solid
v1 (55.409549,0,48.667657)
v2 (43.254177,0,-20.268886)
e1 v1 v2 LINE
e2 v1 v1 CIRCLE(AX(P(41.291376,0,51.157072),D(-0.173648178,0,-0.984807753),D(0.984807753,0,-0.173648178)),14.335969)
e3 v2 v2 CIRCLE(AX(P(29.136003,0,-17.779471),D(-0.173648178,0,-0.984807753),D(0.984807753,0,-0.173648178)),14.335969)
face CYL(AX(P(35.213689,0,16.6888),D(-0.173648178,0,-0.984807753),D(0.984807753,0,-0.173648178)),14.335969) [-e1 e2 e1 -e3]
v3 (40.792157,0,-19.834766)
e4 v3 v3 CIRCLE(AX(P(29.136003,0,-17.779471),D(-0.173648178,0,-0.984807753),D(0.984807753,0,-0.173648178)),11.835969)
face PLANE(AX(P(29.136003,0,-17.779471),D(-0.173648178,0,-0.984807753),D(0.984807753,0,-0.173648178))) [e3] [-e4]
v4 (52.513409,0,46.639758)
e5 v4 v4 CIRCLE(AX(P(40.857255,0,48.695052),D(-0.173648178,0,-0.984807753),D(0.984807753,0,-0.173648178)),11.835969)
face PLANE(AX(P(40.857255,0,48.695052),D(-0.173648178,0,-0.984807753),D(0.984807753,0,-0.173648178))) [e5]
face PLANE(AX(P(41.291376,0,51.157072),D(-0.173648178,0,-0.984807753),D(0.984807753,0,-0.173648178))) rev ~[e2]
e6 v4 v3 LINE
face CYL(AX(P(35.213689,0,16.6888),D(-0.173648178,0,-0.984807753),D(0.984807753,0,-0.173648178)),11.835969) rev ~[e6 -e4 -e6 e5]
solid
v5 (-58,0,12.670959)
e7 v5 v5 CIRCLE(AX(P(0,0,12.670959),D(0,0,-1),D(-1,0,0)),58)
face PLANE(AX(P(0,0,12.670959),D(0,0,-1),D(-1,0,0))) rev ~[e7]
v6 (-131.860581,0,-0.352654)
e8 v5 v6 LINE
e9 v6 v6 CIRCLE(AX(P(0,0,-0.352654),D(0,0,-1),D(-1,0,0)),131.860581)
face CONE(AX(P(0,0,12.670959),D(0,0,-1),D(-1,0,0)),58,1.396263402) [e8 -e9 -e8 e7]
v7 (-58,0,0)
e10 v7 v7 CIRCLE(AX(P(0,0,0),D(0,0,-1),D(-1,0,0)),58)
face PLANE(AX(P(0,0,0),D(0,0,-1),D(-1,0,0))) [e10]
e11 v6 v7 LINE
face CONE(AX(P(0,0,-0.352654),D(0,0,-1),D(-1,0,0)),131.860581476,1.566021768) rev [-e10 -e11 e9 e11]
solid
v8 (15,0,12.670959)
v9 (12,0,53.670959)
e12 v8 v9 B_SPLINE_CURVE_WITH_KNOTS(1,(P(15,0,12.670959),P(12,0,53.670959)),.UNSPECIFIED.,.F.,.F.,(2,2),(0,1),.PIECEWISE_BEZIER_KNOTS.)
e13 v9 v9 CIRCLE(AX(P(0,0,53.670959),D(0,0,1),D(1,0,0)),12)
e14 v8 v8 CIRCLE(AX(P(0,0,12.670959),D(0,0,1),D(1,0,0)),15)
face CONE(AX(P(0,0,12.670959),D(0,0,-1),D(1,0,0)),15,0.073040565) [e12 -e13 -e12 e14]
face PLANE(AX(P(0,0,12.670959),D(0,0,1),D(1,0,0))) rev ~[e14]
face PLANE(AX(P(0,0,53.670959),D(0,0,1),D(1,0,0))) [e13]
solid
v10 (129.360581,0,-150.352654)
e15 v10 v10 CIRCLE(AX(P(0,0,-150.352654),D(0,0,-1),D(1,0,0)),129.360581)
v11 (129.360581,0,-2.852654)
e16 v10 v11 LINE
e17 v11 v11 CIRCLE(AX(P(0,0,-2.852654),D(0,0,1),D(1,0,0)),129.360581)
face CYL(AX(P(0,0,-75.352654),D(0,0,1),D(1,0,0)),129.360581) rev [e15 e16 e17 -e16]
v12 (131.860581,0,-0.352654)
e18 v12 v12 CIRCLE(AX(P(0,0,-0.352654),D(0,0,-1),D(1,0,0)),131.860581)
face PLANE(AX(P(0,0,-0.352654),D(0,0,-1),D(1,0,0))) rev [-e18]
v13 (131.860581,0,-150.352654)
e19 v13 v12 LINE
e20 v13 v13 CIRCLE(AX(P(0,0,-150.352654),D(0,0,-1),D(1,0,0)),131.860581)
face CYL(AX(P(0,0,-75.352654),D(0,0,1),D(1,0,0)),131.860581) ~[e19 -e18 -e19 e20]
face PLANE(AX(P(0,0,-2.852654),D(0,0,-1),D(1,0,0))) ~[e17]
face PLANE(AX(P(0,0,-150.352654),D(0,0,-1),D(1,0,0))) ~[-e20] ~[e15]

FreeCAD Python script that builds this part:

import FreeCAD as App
import Part
import Sketcher
from FreeCAD import Vector
Q = App.Units.Quantity


def faces_at(feature, points):
    """Names of the faces that lie closest to the given points."""
    faces = feature.Shape.Faces
    near = lambda p: min(range(len(faces)), key=lambda i: faces[i].distToShape(Part.Vertex(*p))[0])
    return sorted({f"Face{near(p) + 1}" for p in points})


def add_polygon(sketch, points):
    """Adds a closed chain of lines whose ends are joined by coincident constraints."""
    first, n = sketch.GeometryCount, len(points)
    for a, b in zip(points, points[1:] + points[:1]):
        sketch.addGeometry(Part.LineSegment(App.Vector(*a, 0), App.Vector(*b, 0)), False)
    for i in range(n):
        sketch.addConstraint(Sketcher.Constraint("Coincident", first + i, 2, first + (i + 1) % n, 1))

doc = App.newDocument("Part")
params = doc.addObject("Spreadsheet::Sheet", "Params")
for row, (alias, value) in enumerate([
    ("sketch1_height", "150 mm"),
    ("revolution_angle", "360 deg"),
    ("thickness_wall", "2.5 mm"),
    ("sketch2_width", "58 mm"),
    ("sketch2_length", "75 mm"),
    ("revolution2_angle", "360 deg"),
    ("sketch3_diameter", "30 mm"),
    ("sketch4_diameter", "24 mm"),
    ("pad1_length", "70 mm"),
    ("thickness2_wall", "2.5 mm"),
], start=1):
    params.set(f"A{row}", alias)
    params.set(f"B{row}", "=" + value)
    params.setAlias(f"B{row}", alias)

body = doc.addObject("PartDesign::Body", "Body")

# Sketch on XZ plane
sketch1 = body.newObject("Sketcher::SketchObject", "Sketch")
sketch1.AttachmentSupport = (doc.getObject("XZ_Plane"), [""])
sketch1.MapMode = "FlatFace"
add_polygon(sketch1, [(0, 0), (0, -150), (132, -150), (132, 0)])  # lines 0-3
sketch1.addConstraint([
    Sketcher.Constraint("Vertical", 0),
    Sketcher.Constraint("Horizontal", 1),
    Sketcher.Constraint("Vertical", 2),
    Sketcher.Constraint("Horizontal", 3),
    Sketcher.Constraint("PointOnObject", 0, 2, -2),
    Sketcher.Constraint("DistanceY", 0, 2, 0, 1, 150.0),
    Sketcher.Constraint("DistanceX", 1, 1, 1, 2, 131.860581),
    Sketcher.Constraint("DistanceY", 0, 2, -1, 1, 150.352654),
])
sketch1.setExpression("Constraints[9]", "Params.sketch1_height")
revolution = body.newObject("PartDesign::Revolution", "Revolution")
revolution.Profile = sketch1
revolution.ReferenceAxis = (sketch1, ["V_Axis"])
revolution.setExpression("Angle", "Params.revolution_angle")
doc.recompute()

thickness = body.newObject("PartDesign::Thickness", "Thickness")
thickness.Base = (revolution, faces_at(revolution, [(0, 0, -150.353)]))
thickness.setExpression("Value", "Params.thickness_wall")
thickness.Reversed = True
thickness.Join = "Arc"
body2 = doc.addObject("PartDesign::Body", "Body001")

# Sketch on XZ plane
sketch2 = body2.newObject("Sketcher::SketchObject", "Sketch001")
sketch2.AttachmentSupport = (doc.getObject("XZ_Plane001"), [""])
sketch2.MapMode = "FlatFace"
add_polygon(sketch2, [(-58, 13), (-132, 0), (-58, 0), (0, 0), (0, 13)])  # lines 0-4
sketch2.addConstraint([
    Sketcher.Constraint("Horizontal", 2),
    Sketcher.Constraint("Vertical", 3),
    Sketcher.Constraint("Horizontal", 4),
    Sketcher.Constraint("Coincident", 2, 2, -1, 1),
    Sketcher.Constraint("Vertical", 1, 2, 4, 2),
    Sketcher.Constraint("DistanceX", 2, 1, 2, 2, 58.0),
    Sketcher.Constraint("Angle", 0, Q("-170 deg")),
    Sketcher.Constraint("Distance", 0, 75.0),
    Sketcher.Constraint("DistanceY", 3, 1, 3, 2, 12.670959),
])
sketch2.setExpression("Constraints[10]", "Params.sketch2_width")
sketch2.setExpression("Constraints[12]", "Params.sketch2_length")
revolution2 = body2.newObject("PartDesign::Revolution", "Revolution001")
revolution2.Profile = sketch2
revolution2.ReferenceAxis = (sketch2, ["V_Axis"])
revolution2.setExpression("Angle", "Params.revolution2_angle")
body3 = doc.addObject("PartDesign::Body", "Body002")

# Sketch on XY plane
sketch3 = body3.newObject("Sketcher::SketchObject", "Sketch002")
sketch3.AttachmentSupport = (doc.getObject("XY_Plane002"), [""])
sketch3.MapMode = "FlatFace"
sketch3.AttachmentOffset = App.Placement(Vector(0, 0, 12.670959), App.Rotation())
sketch3.addGeometry(Part.Circle(Vector(0, 0, 0), Vector(0, 0, 1), 15), False)
sketch3.addConstraint([
    Sketcher.Constraint("Coincident", 0, 3, -1, 1),
    Sketcher.Constraint("Diameter", 0, 30.0),
])
sketch3.setExpression("Constraints[1]", "Params.sketch3_diameter")

# Sketch on XY plane
sketch4 = body3.newObject("Sketcher::SketchObject", "Sketch003")
sketch4.AttachmentSupport = (doc.getObject("XY_Plane002"), [""])
sketch4.MapMode = "FlatFace"
sketch4.AttachmentOffset = App.Placement(Vector(0, 0, 53.670959), App.Rotation())
sketch4.addGeometry(Part.Circle(Vector(0, 0, 0), Vector(0, 0, 1), 12), False)
sketch4.addConstraint([
    Sketcher.Constraint("Coincident", 0, 3, -1, 1),
    Sketcher.Constraint("Diameter", 0, 24.0),
])
sketch4.setExpression("Constraints[1]", "Params.sketch4_diameter")

additiveloft = body3.newObject("PartDesign::AdditiveLoft", "AdditiveLoft")
additiveloft.Profile = sketch3
additiveloft.Sections = [sketch4]
body4 = doc.addObject("PartDesign::Body", "Body003")

# Sketch on an angled plane
sketch5 = body4.newObject("Sketcher::SketchObject", "Sketch004")
sketch5.Placement = App.Placement(Vector(3.915776, 0, 22.207467), App.Rotation(Vector(0.984807753, 0, -0.173648178), Vector(0, -1, 0), Vector(-0.173648178, 0, -0.984807753), "ZXY"))
sketch5.addGeometry(Part.Circle(Vector(32, 0, 0), Vector(0, 0, 1), 14), False)
sketch5.addConstraint([
    Sketcher.Constraint("PointOnObject", 0, 3, -1),
    Sketcher.Constraint("Diameter", 0, 28.671938),
    Sketcher.Constraint("DistanceX", -1, 1, 0, 3, 31.780735),
])
pad1 = body4.newObject("PartDesign::Pad", "Pad")
pad1.Profile = sketch5
pad1.setExpression("Length", "Params.pad1_length")
pad1.Midplane = True
doc.recompute()

thickness2 = body4.newObject("PartDesign::Thickness", "Thickness001")
thickness2.Base = (pad1, faces_at(pad1, [(29.136, 0, -17.779)]))
thickness2.setExpression("Value", "Params.thickness2_wall")
thickness2.Reversed = True
thickness2.Join = "Arc"

doc.recompute()
